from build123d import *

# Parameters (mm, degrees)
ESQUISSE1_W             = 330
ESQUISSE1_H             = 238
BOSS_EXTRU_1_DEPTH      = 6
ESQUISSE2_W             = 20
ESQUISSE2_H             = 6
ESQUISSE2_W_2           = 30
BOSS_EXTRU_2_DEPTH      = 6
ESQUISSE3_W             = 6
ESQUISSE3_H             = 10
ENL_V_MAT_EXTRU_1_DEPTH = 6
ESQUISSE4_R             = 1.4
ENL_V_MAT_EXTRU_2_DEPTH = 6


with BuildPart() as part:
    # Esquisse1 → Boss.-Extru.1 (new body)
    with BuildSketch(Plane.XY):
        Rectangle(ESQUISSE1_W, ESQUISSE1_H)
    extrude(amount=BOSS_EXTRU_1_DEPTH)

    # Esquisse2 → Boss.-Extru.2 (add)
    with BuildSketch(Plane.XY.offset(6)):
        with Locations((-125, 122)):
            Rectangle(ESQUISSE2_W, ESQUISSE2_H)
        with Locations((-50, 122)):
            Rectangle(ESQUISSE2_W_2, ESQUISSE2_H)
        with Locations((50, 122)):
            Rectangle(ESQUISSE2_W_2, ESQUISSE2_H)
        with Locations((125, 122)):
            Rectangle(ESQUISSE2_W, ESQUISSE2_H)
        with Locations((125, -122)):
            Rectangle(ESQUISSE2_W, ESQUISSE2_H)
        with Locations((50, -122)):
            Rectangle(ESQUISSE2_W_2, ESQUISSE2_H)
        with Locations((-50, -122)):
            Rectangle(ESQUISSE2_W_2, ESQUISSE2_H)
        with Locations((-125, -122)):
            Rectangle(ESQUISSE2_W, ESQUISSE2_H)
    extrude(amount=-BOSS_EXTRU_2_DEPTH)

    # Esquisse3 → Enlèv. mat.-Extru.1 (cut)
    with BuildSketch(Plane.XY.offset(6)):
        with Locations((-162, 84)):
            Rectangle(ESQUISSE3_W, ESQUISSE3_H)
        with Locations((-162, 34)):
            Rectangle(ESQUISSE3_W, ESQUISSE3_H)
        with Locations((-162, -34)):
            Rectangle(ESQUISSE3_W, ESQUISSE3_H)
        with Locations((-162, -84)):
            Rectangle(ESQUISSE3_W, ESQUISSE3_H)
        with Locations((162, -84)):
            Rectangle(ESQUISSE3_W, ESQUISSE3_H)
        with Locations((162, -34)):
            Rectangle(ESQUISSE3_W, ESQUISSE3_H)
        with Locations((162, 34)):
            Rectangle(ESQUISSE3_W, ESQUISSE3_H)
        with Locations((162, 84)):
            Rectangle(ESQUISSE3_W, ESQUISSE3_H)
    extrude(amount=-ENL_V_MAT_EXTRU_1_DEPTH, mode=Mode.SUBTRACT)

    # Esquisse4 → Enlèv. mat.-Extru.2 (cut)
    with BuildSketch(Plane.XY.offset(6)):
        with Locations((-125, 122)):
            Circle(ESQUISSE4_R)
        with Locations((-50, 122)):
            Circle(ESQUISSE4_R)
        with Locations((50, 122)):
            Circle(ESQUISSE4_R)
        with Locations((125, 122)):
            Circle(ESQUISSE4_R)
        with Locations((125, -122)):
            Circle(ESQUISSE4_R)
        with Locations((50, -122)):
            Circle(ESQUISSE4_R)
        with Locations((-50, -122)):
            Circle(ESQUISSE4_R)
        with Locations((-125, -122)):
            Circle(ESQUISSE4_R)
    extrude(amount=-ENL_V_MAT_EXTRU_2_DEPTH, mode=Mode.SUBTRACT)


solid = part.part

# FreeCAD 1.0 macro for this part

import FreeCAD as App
import Part
import Sketcher

doc = App.newDocument("Part")
body = doc.addObject("PartDesign::Body", "Body")

sketch1 = doc.addObject("Sketcher::SketchObject", "Sketch")
body.addObject(sketch1)
sketch1.AttachmentSupport = (doc.XY_Plane, [""])
sketch1.MapMode = "FlatFace"
sketch1.addGeometry([
    Part.LineSegment(App.Vector(-165, 119, 0), App.Vector(-165, -119, 0)),
    Part.LineSegment(App.Vector(-165, -119, 0), App.Vector(165, -119, 0)),
    Part.LineSegment(App.Vector(165, -119, 0), App.Vector(165, 119, 0)),
    Part.LineSegment(App.Vector(165, 119, 0), App.Vector(-165, 119, 0)),
], False)
sketch1.addConstraint([
    Sketcher.Constraint("Coincident", 0, 2, 1, 1),
    Sketcher.Constraint("Coincident", 1, 2, 2, 1),
    Sketcher.Constraint("Coincident", 2, 2, 3, 1),
    Sketcher.Constraint("Coincident", 3, 2, 0, 1),
    Sketcher.Constraint("Vertical", 0),
    Sketcher.Constraint("Horizontal", 1),
    Sketcher.Constraint("Vertical", 2),
    Sketcher.Constraint("Horizontal", 3),
    Sketcher.Constraint("Symmetric", 0, 2, 2, 2, -1, 1),
    Sketcher.Constraint("DistanceX", 1, 1, 1, 2, 330.0),
    Sketcher.Constraint("DistanceY", 0, 2, 0, 1, 238.0),
])
pad1 = doc.addObject("PartDesign::Pad", "Pad")
body.addObject(pad1)
pad1.Profile = sketch1
pad1.Length = 6

sketch2 = doc.addObject("Sketcher::SketchObject", "Sketch001")
body.addObject(sketch2)
sketch2.AttachmentSupport = (doc.XY_Plane, [""])
sketch2.MapMode = "FlatFace"
sketch2.AttachmentOffset = App.Placement(App.Vector(0, 0, 6), App.Rotation())
sketch2.addGeometry([
    Part.LineSegment(App.Vector(-135, 125, 0), App.Vector(-135, 119, 0)),
    Part.LineSegment(App.Vector(-135, 119, 0), App.Vector(-115, 119, 0)),
    Part.LineSegment(App.Vector(-115, 119, 0), App.Vector(-115, 125, 0)),
    Part.LineSegment(App.Vector(-115, 125, 0), App.Vector(-135, 125, 0)),
    Part.LineSegment(App.Vector(-65, 125, 0), App.Vector(-65, 119, 0)),
    Part.LineSegment(App.Vector(-65, 119, 0), App.Vector(-35, 119, 0)),
    Part.LineSegment(App.Vector(-35, 119, 0), App.Vector(-35, 125, 0)),
    Part.LineSegment(App.Vector(-35, 125, 0), App.Vector(-65, 125, 0)),
    Part.LineSegment(App.Vector(35, 125, 0), App.Vector(35, 119, 0)),
    Part.LineSegment(App.Vector(35, 119, 0), App.Vector(65, 119, 0)),
    Part.LineSegment(App.Vector(65, 119, 0), App.Vector(65, 125, 0)),
    Part.LineSegment(App.Vector(65, 125, 0), App.Vector(35, 125, 0)),
    Part.LineSegment(App.Vector(115, 125, 0), App.Vector(115, 119, 0)),
    Part.LineSegment(App.Vector(115, 119, 0), App.Vector(135, 119, 0)),
    Part.LineSegment(App.Vector(135, 119, 0), App.Vector(135, 125, 0)),
    Part.LineSegment(App.Vector(135, 125, 0), App.Vector(115, 125, 0)),
    Part.LineSegment(App.Vector(115, -119, 0), App.Vector(115, -125, 0)),
    Part.LineSegment(App.Vector(115, -125, 0), App.Vector(135, -125, 0)),
    Part.LineSegment(App.Vector(135, -125, 0), App.Vector(135, -119, 0)),
    Part.LineSegment(App.Vector(135, -119, 0), App.Vector(115, -119, 0)),
    Part.LineSegment(App.Vector(35, -119, 0), App.Vector(35, -125, 0)),
    Part.LineSegment(App.Vector(35, -125, 0), App.Vector(65, -125, 0)),
    Part.LineSegment(App.Vector(65, -125, 0), App.Vector(65, -119, 0)),
    Part.LineSegment(App.Vector(65, -119, 0), App.Vector(35, -119, 0)),
    Part.LineSegment(App.Vector(-65, -119, 0), App.Vector(-65, -125, 0)),
    Part.LineSegment(App.Vector(-65, -125, 0), App.Vector(-35, -125, 0)),
    Part.LineSegment(App.Vector(-35, -125, 0), App.Vector(-35, -119, 0)),
    Part.LineSegment(App.Vector(-35, -119, 0), App.Vector(-65, -119, 0)),
    Part.LineSegment(App.Vector(-135, -119, 0), App.Vector(-135, -125, 0)),
    Part.LineSegment(App.Vector(-135, -125, 0), App.Vector(-115, -125, 0)),
    Part.LineSegment(App.Vector(-115, -125, 0), App.Vector(-115, -119, 0)),
    Part.LineSegment(App.Vector(-115, -119, 0), App.Vector(-135, -119, 0)),
], False)
sketch2.addConstraint([
    Sketcher.Constraint("Coincident", 0, 2, 1, 1),
    Sketcher.Constraint("Coincident", 1, 2, 2, 1),
    Sketcher.Constraint("Coincident", 2, 2, 3, 1),
    Sketcher.Constraint("Coincident", 3, 2, 0, 1),
    Sketcher.Constraint("Coincident", 4, 2, 5, 1),
    Sketcher.Constraint("Coincident", 5, 2, 6, 1),
    Sketcher.Constraint("Coincident", 6, 2, 7, 1),
    Sketcher.Constraint("Coincident", 7, 2, 4, 1),
    Sketcher.Constraint("Coincident", 8, 2, 9, 1),
    Sketcher.Constraint("Coincident", 9, 2, 10, 1),
    Sketcher.Constraint("Coincident", 10, 2, 11, 1),
    Sketcher.Constraint("Coincident", 11, 2, 8, 1),
    Sketcher.Constraint("Coincident", 12, 2, 13, 1),
    Sketcher.Constraint("Coincident", 13, 2, 14, 1),
    Sketcher.Constraint("Coincident", 14, 2, 15, 1),
    Sketcher.Constraint("Coincident", 15, 2, 12, 1),
    Sketcher.Constraint("Coincident", 16, 2, 17, 1),
    Sketcher.Constraint("Coincident", 17, 2, 18, 1),
    Sketcher.Constraint("Coincident", 18, 2, 19, 1),
    Sketcher.Constraint("Coincident", 19, 2, 16, 1),
    Sketcher.Constraint("Coincident", 20, 2, 21, 1),
    Sketcher.Constraint("Coincident", 21, 2, 22, 1),
    Sketcher.Constraint("Coincident", 22, 2, 23, 1),
    Sketcher.Constraint("Coincident", 23, 2, 20, 1),
    Sketcher.Constraint("Coincident", 24, 2, 25, 1),
    Sketcher.Constraint("Coincident", 25, 2, 26, 1),
    Sketcher.Constraint("Coincident", 26, 2, 27, 1),
    Sketcher.Constraint("Coincident", 27, 2, 24, 1),
    Sketcher.Constraint("Coincident", 28, 2, 29, 1),
    Sketcher.Constraint("Coincident", 29, 2, 30, 1),
    Sketcher.Constraint("Coincident", 30, 2, 31, 1),
    Sketcher.Constraint("Coincident", 31, 2, 28, 1),
    Sketcher.Constraint("Vertical", 0),
    Sketcher.Constraint("Horizontal", 1),
    Sketcher.Constraint("Vertical", 2),
    Sketcher.Constraint("Horizontal", 3),
    Sketcher.Constraint("Vertical", 4),
    Sketcher.Constraint("Horizontal", 5),
    Sketcher.Constraint("Vertical", 6),
    Sketcher.Constraint("Horizontal", 7),
    Sketcher.Constraint("Vertical", 8),
    Sketcher.Constraint("Horizontal", 9),
    Sketcher.Constraint("Vertical", 10),
    Sketcher.Constraint("Horizontal", 11),
    Sketcher.Constraint("Vertical", 12),
    Sketcher.Constraint("Horizontal", 13),
    Sketcher.Constraint("Vertical", 14),
    Sketcher.Constraint("Horizontal", 15),
    Sketcher.Constraint("Vertical", 16),
    Sketcher.Constraint("Horizontal", 17),
    Sketcher.Constraint("Vertical", 18),
    Sketcher.Constraint("Horizontal", 19),
    Sketcher.Constraint("Vertical", 20),
    Sketcher.Constraint("Horizontal", 21),
    Sketcher.Constraint("Vertical", 22),
    Sketcher.Constraint("Horizontal", 23),
    Sketcher.Constraint("Vertical", 24),
    Sketcher.Constraint("Horizontal", 25),
    Sketcher.Constraint("Vertical", 26),
    Sketcher.Constraint("Horizontal", 27),
    Sketcher.Constraint("Vertical", 28),
    Sketcher.Constraint("Horizontal", 29),
    Sketcher.Constraint("Vertical", 30),
    Sketcher.Constraint("Horizontal", 31),
    Sketcher.Constraint("Symmetric", 2, 2, 16, 2, -1, 1),
    Sketcher.Constraint("Symmetric", 0, 2, 18, 2, -1, 1),
    Sketcher.Constraint("Symmetric", 6, 2, 20, 2, -1, 1),
    Sketcher.Constraint("Symmetric", 4, 2, 22, 2, -1, 1),
    Sketcher.Constraint("Symmetric", 10, 2, 24, 2, -1, 1),
    Sketcher.Constraint("Symmetric", 8, 2, 26, 2, -1, 1),
    Sketcher.Constraint("Symmetric", 14, 2, 28, 2, -1, 1),
    Sketcher.Constraint("Symmetric", 12, 2, 30, 2, -1, 1),
    Sketcher.Constraint("Symmetric", 5, 2, 8, 2, -2),
    Sketcher.Constraint("Symmetric", 7, 2, 10, 2, -2),
    Sketcher.Constraint("Symmetric", 1, 2, 12, 2, -2),
    Sketcher.Constraint("Symmetric", 3, 2, 14, 2, -2),
    Sketcher.Constraint("Horizontal", 1, 2, 4, 2),
    Sketcher.Constraint("Horizontal", 3, 2, 6, 2),
    Sketcher.Constraint("DistanceX", 1, 1, 1, 2, 20.0),
    Sketcher.Constraint("DistanceX", 5, 1, 5, 2, 30.0),
    Sketcher.Constraint("DistanceY", 0, 2, 0, 1, 6.0),
    Sketcher.Constraint("DistanceX", 0, 2, -1, 1, 135.0),
    Sketcher.Constraint("DistanceY", -1, 1, 0, 2, 119.0),
    Sketcher.Constraint("DistanceX", 4, 2, -1, 1, 65.0),
])
pad2 = doc.addObject("PartDesign::Pad", "Pad001")
body.addObject(pad2)
pad2.Profile = sketch2
pad2.Length = 6
pad2.Reversed = True

sketch3 = doc.addObject("Sketcher::SketchObject", "Sketch002")
body.addObject(sketch3)
sketch3.AttachmentSupport = (doc.XY_Plane, [""])
sketch3.MapMode = "FlatFace"
sketch3.AttachmentOffset = App.Placement(App.Vector(0, 0, 6), App.Rotation())
sketch3.addGeometry([
    Part.LineSegment(App.Vector(-165, 89, 0), App.Vector(-165, 79, 0)),
    Part.LineSegment(App.Vector(-165, 79, 0), App.Vector(-159, 79, 0)),
    Part.LineSegment(App.Vector(-159, 79, 0), App.Vector(-159, 89, 0)),
    Part.LineSegment(App.Vector(-159, 89, 0), App.Vector(-165, 89, 0)),
    Part.LineSegment(App.Vector(-165, 39, 0), App.Vector(-165, 29, 0)),
    Part.LineSegment(App.Vector(-165, 29, 0), App.Vector(-159, 29, 0)),
    Part.LineSegment(App.Vector(-159, 29, 0), App.Vector(-159, 39, 0)),
    Part.LineSegment(App.Vector(-159, 39, 0), App.Vector(-165, 39, 0)),
    Part.LineSegment(App.Vector(-165, -29, 0), App.Vector(-165, -39, 0)),
    Part.LineSegment(App.Vector(-165, -39, 0), App.Vector(-159, -39, 0)),
    Part.LineSegment(App.Vector(-159, -39, 0), App.Vector(-159, -29, 0)),
    Part.LineSegment(App.Vector(-159, -29, 0), App.Vector(-165, -29, 0)),
    Part.LineSegment(App.Vector(-165, -79, 0), App.Vector(-165, -89, 0)),
    Part.LineSegment(App.Vector(-165, -89, 0), App.Vector(-159, -89, 0)),
    Part.LineSegment(App.Vector(-159, -89, 0), App.Vector(-159, -79, 0)),
    Part.LineSegment(App.Vector(-159, -79, 0), App.Vector(-165, -79, 0)),
    Part.LineSegment(App.Vector(159, -79, 0), App.Vector(159, -89, 0)),
    Part.LineSegment(App.Vector(159, -89, 0), App.Vector(165, -89, 0)),
    Part.LineSegment(App.Vector(165, -89, 0), App.Vector(165, -79, 0)),
    Part.LineSegment(App.Vector(165, -79, 0), App.Vector(159, -79, 0)),
    Part.LineSegment(App.Vector(159, -29, 0), App.Vector(159, -39, 0)),
    Part.LineSegment(App.Vector(159, -39, 0), App.Vector(165, -39, 0)),
    Part.LineSegment(App.Vector(165, -39, 0), App.Vector(165, -29, 0)),
    Part.LineSegment(App.Vector(165, -29, 0), App.Vector(159, -29, 0)),
    Part.LineSegment(App.Vector(159, 39, 0), App.Vector(159, 29, 0)),
    Part.LineSegment(App.Vector(159, 29, 0), App.Vector(165, 29, 0)),
    Part.LineSegment(App.Vector(165, 29, 0), App.Vector(165, 39, 0)),
    Part.LineSegment(App.Vector(165, 39, 0), App.Vector(159, 39, 0)),
    Part.LineSegment(App.Vector(159, 89, 0), App.Vector(159, 79, 0)),
    Part.LineSegment(App.Vector(159, 79, 0), App.Vector(165, 79, 0)),
    Part.LineSegment(App.Vector(165, 79, 0), App.Vector(165, 89, 0)),
    Part.LineSegment(App.Vector(165, 89, 0), App.Vector(159, 89, 0)),
], False)
sketch3.addConstraint([
    Sketcher.Constraint("Coincident", 0, 2, 1, 1),
    Sketcher.Constraint("Coincident", 1, 2, 2, 1),
    Sketcher.Constraint("Coincident", 2, 2, 3, 1),
    Sketcher.Constraint("Coincident", 3, 2, 0, 1),
    Sketcher.Constraint("Coincident", 4, 2, 5, 1),
    Sketcher.Constraint("Coincident", 5, 2, 6, 1),
    Sketcher.Constraint("Coincident", 6, 2, 7, 1),
    Sketcher.Constraint("Coincident", 7, 2, 4, 1),
    Sketcher.Constraint("Coincident", 8, 2, 9, 1),
    Sketcher.Constraint("Coincident", 9, 2, 10, 1),
    Sketcher.Constraint("Coincident", 10, 2, 11, 1),
    Sketcher.Constraint("Coincident", 11, 2, 8, 1),
    Sketcher.Constraint("Coincident", 12, 2, 13, 1),
    Sketcher.Constraint("Coincident", 13, 2, 14, 1),
    Sketcher.Constraint("Coincident", 14, 2, 15, 1),
    Sketcher.Constraint("Coincident", 15, 2, 12, 1),
    Sketcher.Constraint("Coincident", 16, 2, 17, 1),
    Sketcher.Constraint("Coincident", 17, 2, 18, 1),
    Sketcher.Constraint("Coincident", 18, 2, 19, 1),
    Sketcher.Constraint("Coincident", 19, 2, 16, 1),
    Sketcher.Constraint("Coincident", 20, 2, 21, 1),
    Sketcher.Constraint("Coincident", 21, 2, 22, 1),
    Sketcher.Constraint("Coincident", 22, 2, 23, 1),
    Sketcher.Constraint("Coincident", 23, 2, 20, 1),
    Sketcher.Constraint("Coincident", 24, 2, 25, 1),
    Sketcher.Constraint("Coincident", 25, 2, 26, 1),
    Sketcher.Constraint("Coincident", 26, 2, 27, 1),
    Sketcher.Constraint("Coincident", 27, 2, 24, 1),
    Sketcher.Constraint("Coincident", 28, 2, 29, 1),
    Sketcher.Constraint("Coincident", 29, 2, 30, 1),
    Sketcher.Constraint("Coincident", 30, 2, 31, 1),
    Sketcher.Constraint("Coincident", 31, 2, 28, 1),
    Sketcher.Constraint("Vertical", 0),
    Sketcher.Constraint("Horizontal", 1),
    Sketcher.Constraint("Vertical", 2),
    Sketcher.Constraint("Horizontal", 3),
    Sketcher.Constraint("Vertical", 4),
    Sketcher.Constraint("Horizontal", 5),
    Sketcher.Constraint("Vertical", 6),
    Sketcher.Constraint("Horizontal", 7),
    Sketcher.Constraint("Vertical", 8),
    Sketcher.Constraint("Horizontal", 9),
    Sketcher.Constraint("Vertical", 10),
    Sketcher.Constraint("Horizontal", 11),
    Sketcher.Constraint("Vertical", 12),
    Sketcher.Constraint("Horizontal", 13),
    Sketcher.Constraint("Vertical", 14),
    Sketcher.Constraint("Horizontal", 15),
    Sketcher.Constraint("Vertical", 16),
    Sketcher.Constraint("Horizontal", 17),
    Sketcher.Constraint("Vertical", 18),
    Sketcher.Constraint("Horizontal", 19),
    Sketcher.Constraint("Vertical", 20),
    Sketcher.Constraint("Horizontal", 21),
    Sketcher.Constraint("Vertical", 22),
    Sketcher.Constraint("Horizontal", 23),
    Sketcher.Constraint("Vertical", 24),
    Sketcher.Constraint("Horizontal", 25),
    Sketcher.Constraint("Vertical", 26),
    Sketcher.Constraint("Horizontal", 27),
    Sketcher.Constraint("Vertical", 28),
    Sketcher.Constraint("Horizontal", 29),
    Sketcher.Constraint("Vertical", 30),
    Sketcher.Constraint("Horizontal", 31),
    Sketcher.Constraint("Symmetric", 2, 2, 16, 2, -1, 1),
    Sketcher.Constraint("Symmetric", 0, 2, 18, 2, -1, 1),
    Sketcher.Constraint("Symmetric", 6, 2, 20, 2, -1, 1),
    Sketcher.Constraint("Symmetric", 4, 2, 22, 2, -1, 1),
    Sketcher.Constraint("Symmetric", 10, 2, 24, 2, -1, 1),
    Sketcher.Constraint("Symmetric", 8, 2, 26, 2, -1, 1),
    Sketcher.Constraint("Symmetric", 14, 2, 28, 2, -1, 1),
    Sketcher.Constraint("Symmetric", 12, 2, 30, 2, -1, 1),
    Sketcher.Constraint("Symmetric", 13, 2, 16, 2, -2),
    Sketcher.Constraint("Symmetric", 15, 2, 18, 2, -2),
    Sketcher.Constraint("Symmetric", 9, 2, 20, 2, -2),
    Sketcher.Constraint("Symmetric", 11, 2, 22, 2, -2),
    Sketcher.Constraint("Vertical", 3, 2, 4, 2),
    Sketcher.Constraint("Vertical", 2, 2, 5, 2),
    Sketcher.Constraint("Equal", 2, 4),
    Sketcher.Constraint("DistanceX", 1, 1, 1, 2, 6.0),
    Sketcher.Constraint("DistanceY", 0, 2, 0, 1, 10.0),
    Sketcher.Constraint("DistanceX", 0, 2, -1, 1, 165.0),
    Sketcher.Constraint("DistanceY", -1, 1, 0, 2, 79.0),
    Sketcher.Constraint("DistanceY", -1, 1, 4, 2, 29.0),
])
pocket1 = doc.addObject("PartDesign::Pocket", "Pocket")
body.addObject(pocket1)
pocket1.Profile = sketch3
pocket1.Length = 6

sketch4 = doc.addObject("Sketcher::SketchObject", "Sketch003")
body.addObject(sketch4)
sketch4.AttachmentSupport = (doc.XY_Plane, [""])
sketch4.MapMode = "FlatFace"
sketch4.AttachmentOffset = App.Placement(App.Vector(0, 0, 6), App.Rotation())
sketch4.addGeometry([
    Part.Circle(App.Vector(-125, 122, 0), App.Vector(0, 0, 1), 1.4),
    Part.Circle(App.Vector(-50, 122, 0), App.Vector(0, 0, 1), 1.4),
    Part.Circle(App.Vector(50, 122, 0), App.Vector(0, 0, 1), 1.4),
    Part.Circle(App.Vector(125, 122, 0), App.Vector(0, 0, 1), 1.4),
    Part.Circle(App.Vector(125, -122, 0), App.Vector(0, 0, 1), 1.4),
    Part.Circle(App.Vector(50, -122, 0), App.Vector(0, 0, 1), 1.4),
    Part.Circle(App.Vector(-50, -122, 0), App.Vector(0, 0, 1), 1.4),
    Part.Circle(App.Vector(-125, -122, 0), App.Vector(0, 0, 1), 1.4),
], False)
sketch4.addConstraint([
    Sketcher.Constraint("Equal", 0, 1),
    Sketcher.Constraint("Equal", 1, 2),
    Sketcher.Constraint("Equal", 2, 3),
    Sketcher.Constraint("Equal", 3, 4),
    Sketcher.Constraint("Equal", 4, 5),
    Sketcher.Constraint("Equal", 5, 6),
    Sketcher.Constraint("Equal", 6, 7),
    Sketcher.Constraint("Symmetric", 0, 3, 4, 3, -1, 1),
    Sketcher.Constraint("Symmetric", 1, 3, 5, 3, -1, 1),
    Sketcher.Constraint("Symmetric", 2, 3, 6, 3, -1, 1),
    Sketcher.Constraint("Symmetric", 3, 3, 7, 3, -1, 1),
    Sketcher.Constraint("Symmetric", 1, 3, 2, 3, -2),
    Sketcher.Constraint("Symmetric", 0, 3, 3, 3, -2),
    Sketcher.Constraint("Horizontal", 0, 3, 1, 3),
    Sketcher.Constraint("Diameter", 0, 2.8),
    Sketcher.Constraint("DistanceX", 0, 3, -1, 1, 125.0),
    Sketcher.Constraint("DistanceY", -1, 1, 0, 3, 122.0),
    Sketcher.Constraint("DistanceX", 1, 3, -1, 1, 50.0),
])
pocket2 = doc.addObject("PartDesign::Pocket", "Pocket001")
body.addObject(pocket2)
pocket2.Profile = sketch4
pocket2.Length = 6

doc.recompute()
